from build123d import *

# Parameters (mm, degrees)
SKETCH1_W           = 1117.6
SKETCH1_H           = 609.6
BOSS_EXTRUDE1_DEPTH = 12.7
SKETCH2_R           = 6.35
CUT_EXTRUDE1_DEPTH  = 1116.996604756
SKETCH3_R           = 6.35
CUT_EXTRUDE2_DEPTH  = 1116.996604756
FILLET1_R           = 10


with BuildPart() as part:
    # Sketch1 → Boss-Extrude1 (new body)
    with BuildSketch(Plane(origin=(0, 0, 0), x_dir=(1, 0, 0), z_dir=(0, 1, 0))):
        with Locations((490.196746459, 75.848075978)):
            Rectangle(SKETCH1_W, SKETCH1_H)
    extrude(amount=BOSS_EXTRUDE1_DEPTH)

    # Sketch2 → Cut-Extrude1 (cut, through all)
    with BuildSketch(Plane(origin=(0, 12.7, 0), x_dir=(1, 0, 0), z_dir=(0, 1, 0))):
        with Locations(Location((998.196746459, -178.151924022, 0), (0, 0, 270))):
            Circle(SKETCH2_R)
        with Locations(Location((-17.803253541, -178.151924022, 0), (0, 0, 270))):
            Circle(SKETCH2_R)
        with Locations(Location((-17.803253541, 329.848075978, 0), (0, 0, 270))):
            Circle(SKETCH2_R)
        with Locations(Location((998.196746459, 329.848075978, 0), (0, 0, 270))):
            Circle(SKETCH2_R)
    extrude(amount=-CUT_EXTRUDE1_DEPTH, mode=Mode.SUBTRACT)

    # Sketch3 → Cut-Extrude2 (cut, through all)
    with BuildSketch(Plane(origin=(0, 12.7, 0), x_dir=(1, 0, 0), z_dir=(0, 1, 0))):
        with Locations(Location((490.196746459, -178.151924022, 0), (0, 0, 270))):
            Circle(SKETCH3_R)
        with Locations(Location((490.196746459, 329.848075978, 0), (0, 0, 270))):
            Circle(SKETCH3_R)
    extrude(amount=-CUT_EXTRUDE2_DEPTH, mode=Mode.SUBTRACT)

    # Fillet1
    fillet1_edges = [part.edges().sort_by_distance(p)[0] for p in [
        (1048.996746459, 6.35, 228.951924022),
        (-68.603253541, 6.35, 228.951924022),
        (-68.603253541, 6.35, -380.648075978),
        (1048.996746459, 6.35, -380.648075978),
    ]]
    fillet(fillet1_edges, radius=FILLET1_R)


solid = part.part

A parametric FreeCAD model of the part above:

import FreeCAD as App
import Part
import Sketcher
Q = App.Units.Quantity


def edges_at(feature, points):
    """Names of the edges that pass closest to the given points."""
    edges = feature.Shape.Edges
    near = lambda p: min(range(len(edges)), key=lambda i: edges[i].distToShape(Part.Vertex(*p))[0])
    return sorted({f"Edge{near(p) + 1}" for p in points})


def add_polygon(sketch, points):
    """Adds a closed chain of lines whose ends are joined by coincident constraints."""
    first, n = sketch.GeometryCount, len(points)
    for a, b in zip(points, points[1:] + points[:1]):
        sketch.addGeometry(Part.LineSegment(App.Vector(*a, 0), App.Vector(*b, 0)), False)
    for i in range(n):
        sketch.addConstraint(Sketcher.Constraint("Coincident", first + i, 2, first + (i + 1) % n, 1))

doc = App.newDocument("Part")
body = doc.addObject("PartDesign::Body", "Body")

sketch1 = body.newObject("Sketcher::SketchObject", "Sketch")
sketch1.AttachmentSupport = (doc.getObject("XZ_Plane"), [""])
sketch1.MapMode = "FlatFace"
add_polygon(sketch1, [(-69, -381), (-69, 229), (1049, 229), (1049, -381)])
sketch1.addConstraint(Sketcher.Constraint("Vertical", 0))
sketch1.addConstraint(Sketcher.Constraint("Horizontal", 1))
sketch1.addConstraint(Sketcher.Constraint("Vertical", 2))
sketch1.addConstraint(Sketcher.Constraint("Horizontal", 3))
sketch1.addConstraint(Sketcher.Constraint("DistanceX", 1, 1, 1, 2, Q("44 in")))
sketch1.addConstraint(Sketcher.Constraint("DistanceY", 0, 1, 0, 2, Q("24 in")))
sketch1.addConstraint(Sketcher.Constraint("DistanceX", 0, 2, -1, 1, Q("68.603254 mm")))
sketch1.addConstraint(Sketcher.Constraint("DistanceY", -1, 1, 0, 2, Q("228.951924 mm")))
pad1 = body.newObject("PartDesign::Pad", "Pad")
pad1.Profile = sketch1
pad1.Length = Q("0.5 in")
pad1.Reversed = True

sketch2 = body.newObject("Sketcher::SketchObject", "Sketch001")
sketch2.AttachmentSupport = (doc.getObject("XZ_Plane"), [""])
sketch2.MapMode = "FlatFace"
sketch2.AttachmentOffset = App.Placement(App.Vector(0, 0, -0.5 * 25.4), App.Rotation())
sketch2.addGeometry(Part.Circle(App.Vector(998, 178, 0), App.Vector(0, 0, 1), 6), False)
sketch2.addGeometry(Part.Circle(App.Vector(-18, 178, 0), App.Vector(0, 0, 1), 6), False)
sketch2.addGeometry(Part.Circle(App.Vector(-18, -330, 0), App.Vector(0, 0, 1), 6), False)
sketch2.addGeometry(Part.Circle(App.Vector(998, -330, 0), App.Vector(0, 0, 1), 6), False)
sketch2.addConstraint(Sketcher.Constraint("Equal", 0, 1))
sketch2.addConstraint(Sketcher.Constraint("Equal", 1, 2))
sketch2.addConstraint(Sketcher.Constraint("Equal", 2, 3))
sketch2.addConstraint(Sketcher.Constraint("Horizontal", 0, 3, 1, 3))
sketch2.addConstraint(Sketcher.Constraint("Horizontal", 2, 3, 3, 3))
sketch2.addConstraint(Sketcher.Constraint("Vertical", 1, 3, 2, 3))
sketch2.addConstraint(Sketcher.Constraint("Vertical", 0, 3, 3, 3))
sketch2.addConstraint(Sketcher.Constraint("Diameter", 0, Q("0.5 in")))
sketch2.addConstraint(Sketcher.Constraint("DistanceX", 1, 3, 0, 3, Q("40 in")))
sketch2.addConstraint(Sketcher.Constraint("DistanceY", 2, 3, 1, 3, Q("20 in")))
sketch2.addConstraint(Sketcher.Constraint("DistanceX", -1, 1, 0, 3, Q("998.196746 mm")))
sketch2.addConstraint(Sketcher.Constraint("DistanceY", -1, 1, 0, 3, Q("178.151924 mm")))
pocket1 = body.newObject("PartDesign::Pocket", "Pocket")
pocket1.Profile = sketch2
pocket1.Type = "ThroughAll"
pocket1.Reversed = True

sketch3 = body.newObject("Sketcher::SketchObject", "Sketch002")
sketch3.AttachmentSupport = (doc.getObject("XZ_Plane"), [""])
sketch3.MapMode = "FlatFace"
sketch3.AttachmentOffset = App.Placement(App.Vector(0, 0, -0.5 * 25.4), App.Rotation())
sketch3.addGeometry(Part.Circle(App.Vector(490, 178, 0), App.Vector(0, 0, 1), 6), False)
sketch3.addGeometry(Part.Circle(App.Vector(490, -330, 0), App.Vector(0, 0, 1), 6), False)
sketch3.addConstraint(Sketcher.Constraint("Equal", 0, 1))
sketch3.addConstraint(Sketcher.Constraint("Vertical", 0, 3, 1, 3))
sketch3.addConstraint(Sketcher.Constraint("Diameter", 0, Q("0.5 in")))
sketch3.addConstraint(Sketcher.Constraint("DistanceY", 1, 3, 0, 3, Q("20 in")))
sketch3.addConstraint(Sketcher.Constraint("DistanceX", -1, 1, 0, 3, Q("490.196746 mm")))
sketch3.addConstraint(Sketcher.Constraint("DistanceY", -1, 1, 0, 3, Q("178.151924 mm")))
pocket2 = body.newObject("PartDesign::Pocket", "Pocket001")
pocket2.Profile = sketch3
pocket2.Type = "ThroughAll"
pocket2.Reversed = True
doc.recompute()

fillet = body.newObject("PartDesign::Fillet", "Fillet")
fillet.Base = (pocket2, edges_at(pocket2, [
    (1048.997, 6.35, 228.952),
    (-68.603, 6.35, 228.952),
    (-68.603, 6.35, -380.648),
    (1048.997, 6.35, -380.648),
]))
fillet.Radius = 10

doc.recompute()
